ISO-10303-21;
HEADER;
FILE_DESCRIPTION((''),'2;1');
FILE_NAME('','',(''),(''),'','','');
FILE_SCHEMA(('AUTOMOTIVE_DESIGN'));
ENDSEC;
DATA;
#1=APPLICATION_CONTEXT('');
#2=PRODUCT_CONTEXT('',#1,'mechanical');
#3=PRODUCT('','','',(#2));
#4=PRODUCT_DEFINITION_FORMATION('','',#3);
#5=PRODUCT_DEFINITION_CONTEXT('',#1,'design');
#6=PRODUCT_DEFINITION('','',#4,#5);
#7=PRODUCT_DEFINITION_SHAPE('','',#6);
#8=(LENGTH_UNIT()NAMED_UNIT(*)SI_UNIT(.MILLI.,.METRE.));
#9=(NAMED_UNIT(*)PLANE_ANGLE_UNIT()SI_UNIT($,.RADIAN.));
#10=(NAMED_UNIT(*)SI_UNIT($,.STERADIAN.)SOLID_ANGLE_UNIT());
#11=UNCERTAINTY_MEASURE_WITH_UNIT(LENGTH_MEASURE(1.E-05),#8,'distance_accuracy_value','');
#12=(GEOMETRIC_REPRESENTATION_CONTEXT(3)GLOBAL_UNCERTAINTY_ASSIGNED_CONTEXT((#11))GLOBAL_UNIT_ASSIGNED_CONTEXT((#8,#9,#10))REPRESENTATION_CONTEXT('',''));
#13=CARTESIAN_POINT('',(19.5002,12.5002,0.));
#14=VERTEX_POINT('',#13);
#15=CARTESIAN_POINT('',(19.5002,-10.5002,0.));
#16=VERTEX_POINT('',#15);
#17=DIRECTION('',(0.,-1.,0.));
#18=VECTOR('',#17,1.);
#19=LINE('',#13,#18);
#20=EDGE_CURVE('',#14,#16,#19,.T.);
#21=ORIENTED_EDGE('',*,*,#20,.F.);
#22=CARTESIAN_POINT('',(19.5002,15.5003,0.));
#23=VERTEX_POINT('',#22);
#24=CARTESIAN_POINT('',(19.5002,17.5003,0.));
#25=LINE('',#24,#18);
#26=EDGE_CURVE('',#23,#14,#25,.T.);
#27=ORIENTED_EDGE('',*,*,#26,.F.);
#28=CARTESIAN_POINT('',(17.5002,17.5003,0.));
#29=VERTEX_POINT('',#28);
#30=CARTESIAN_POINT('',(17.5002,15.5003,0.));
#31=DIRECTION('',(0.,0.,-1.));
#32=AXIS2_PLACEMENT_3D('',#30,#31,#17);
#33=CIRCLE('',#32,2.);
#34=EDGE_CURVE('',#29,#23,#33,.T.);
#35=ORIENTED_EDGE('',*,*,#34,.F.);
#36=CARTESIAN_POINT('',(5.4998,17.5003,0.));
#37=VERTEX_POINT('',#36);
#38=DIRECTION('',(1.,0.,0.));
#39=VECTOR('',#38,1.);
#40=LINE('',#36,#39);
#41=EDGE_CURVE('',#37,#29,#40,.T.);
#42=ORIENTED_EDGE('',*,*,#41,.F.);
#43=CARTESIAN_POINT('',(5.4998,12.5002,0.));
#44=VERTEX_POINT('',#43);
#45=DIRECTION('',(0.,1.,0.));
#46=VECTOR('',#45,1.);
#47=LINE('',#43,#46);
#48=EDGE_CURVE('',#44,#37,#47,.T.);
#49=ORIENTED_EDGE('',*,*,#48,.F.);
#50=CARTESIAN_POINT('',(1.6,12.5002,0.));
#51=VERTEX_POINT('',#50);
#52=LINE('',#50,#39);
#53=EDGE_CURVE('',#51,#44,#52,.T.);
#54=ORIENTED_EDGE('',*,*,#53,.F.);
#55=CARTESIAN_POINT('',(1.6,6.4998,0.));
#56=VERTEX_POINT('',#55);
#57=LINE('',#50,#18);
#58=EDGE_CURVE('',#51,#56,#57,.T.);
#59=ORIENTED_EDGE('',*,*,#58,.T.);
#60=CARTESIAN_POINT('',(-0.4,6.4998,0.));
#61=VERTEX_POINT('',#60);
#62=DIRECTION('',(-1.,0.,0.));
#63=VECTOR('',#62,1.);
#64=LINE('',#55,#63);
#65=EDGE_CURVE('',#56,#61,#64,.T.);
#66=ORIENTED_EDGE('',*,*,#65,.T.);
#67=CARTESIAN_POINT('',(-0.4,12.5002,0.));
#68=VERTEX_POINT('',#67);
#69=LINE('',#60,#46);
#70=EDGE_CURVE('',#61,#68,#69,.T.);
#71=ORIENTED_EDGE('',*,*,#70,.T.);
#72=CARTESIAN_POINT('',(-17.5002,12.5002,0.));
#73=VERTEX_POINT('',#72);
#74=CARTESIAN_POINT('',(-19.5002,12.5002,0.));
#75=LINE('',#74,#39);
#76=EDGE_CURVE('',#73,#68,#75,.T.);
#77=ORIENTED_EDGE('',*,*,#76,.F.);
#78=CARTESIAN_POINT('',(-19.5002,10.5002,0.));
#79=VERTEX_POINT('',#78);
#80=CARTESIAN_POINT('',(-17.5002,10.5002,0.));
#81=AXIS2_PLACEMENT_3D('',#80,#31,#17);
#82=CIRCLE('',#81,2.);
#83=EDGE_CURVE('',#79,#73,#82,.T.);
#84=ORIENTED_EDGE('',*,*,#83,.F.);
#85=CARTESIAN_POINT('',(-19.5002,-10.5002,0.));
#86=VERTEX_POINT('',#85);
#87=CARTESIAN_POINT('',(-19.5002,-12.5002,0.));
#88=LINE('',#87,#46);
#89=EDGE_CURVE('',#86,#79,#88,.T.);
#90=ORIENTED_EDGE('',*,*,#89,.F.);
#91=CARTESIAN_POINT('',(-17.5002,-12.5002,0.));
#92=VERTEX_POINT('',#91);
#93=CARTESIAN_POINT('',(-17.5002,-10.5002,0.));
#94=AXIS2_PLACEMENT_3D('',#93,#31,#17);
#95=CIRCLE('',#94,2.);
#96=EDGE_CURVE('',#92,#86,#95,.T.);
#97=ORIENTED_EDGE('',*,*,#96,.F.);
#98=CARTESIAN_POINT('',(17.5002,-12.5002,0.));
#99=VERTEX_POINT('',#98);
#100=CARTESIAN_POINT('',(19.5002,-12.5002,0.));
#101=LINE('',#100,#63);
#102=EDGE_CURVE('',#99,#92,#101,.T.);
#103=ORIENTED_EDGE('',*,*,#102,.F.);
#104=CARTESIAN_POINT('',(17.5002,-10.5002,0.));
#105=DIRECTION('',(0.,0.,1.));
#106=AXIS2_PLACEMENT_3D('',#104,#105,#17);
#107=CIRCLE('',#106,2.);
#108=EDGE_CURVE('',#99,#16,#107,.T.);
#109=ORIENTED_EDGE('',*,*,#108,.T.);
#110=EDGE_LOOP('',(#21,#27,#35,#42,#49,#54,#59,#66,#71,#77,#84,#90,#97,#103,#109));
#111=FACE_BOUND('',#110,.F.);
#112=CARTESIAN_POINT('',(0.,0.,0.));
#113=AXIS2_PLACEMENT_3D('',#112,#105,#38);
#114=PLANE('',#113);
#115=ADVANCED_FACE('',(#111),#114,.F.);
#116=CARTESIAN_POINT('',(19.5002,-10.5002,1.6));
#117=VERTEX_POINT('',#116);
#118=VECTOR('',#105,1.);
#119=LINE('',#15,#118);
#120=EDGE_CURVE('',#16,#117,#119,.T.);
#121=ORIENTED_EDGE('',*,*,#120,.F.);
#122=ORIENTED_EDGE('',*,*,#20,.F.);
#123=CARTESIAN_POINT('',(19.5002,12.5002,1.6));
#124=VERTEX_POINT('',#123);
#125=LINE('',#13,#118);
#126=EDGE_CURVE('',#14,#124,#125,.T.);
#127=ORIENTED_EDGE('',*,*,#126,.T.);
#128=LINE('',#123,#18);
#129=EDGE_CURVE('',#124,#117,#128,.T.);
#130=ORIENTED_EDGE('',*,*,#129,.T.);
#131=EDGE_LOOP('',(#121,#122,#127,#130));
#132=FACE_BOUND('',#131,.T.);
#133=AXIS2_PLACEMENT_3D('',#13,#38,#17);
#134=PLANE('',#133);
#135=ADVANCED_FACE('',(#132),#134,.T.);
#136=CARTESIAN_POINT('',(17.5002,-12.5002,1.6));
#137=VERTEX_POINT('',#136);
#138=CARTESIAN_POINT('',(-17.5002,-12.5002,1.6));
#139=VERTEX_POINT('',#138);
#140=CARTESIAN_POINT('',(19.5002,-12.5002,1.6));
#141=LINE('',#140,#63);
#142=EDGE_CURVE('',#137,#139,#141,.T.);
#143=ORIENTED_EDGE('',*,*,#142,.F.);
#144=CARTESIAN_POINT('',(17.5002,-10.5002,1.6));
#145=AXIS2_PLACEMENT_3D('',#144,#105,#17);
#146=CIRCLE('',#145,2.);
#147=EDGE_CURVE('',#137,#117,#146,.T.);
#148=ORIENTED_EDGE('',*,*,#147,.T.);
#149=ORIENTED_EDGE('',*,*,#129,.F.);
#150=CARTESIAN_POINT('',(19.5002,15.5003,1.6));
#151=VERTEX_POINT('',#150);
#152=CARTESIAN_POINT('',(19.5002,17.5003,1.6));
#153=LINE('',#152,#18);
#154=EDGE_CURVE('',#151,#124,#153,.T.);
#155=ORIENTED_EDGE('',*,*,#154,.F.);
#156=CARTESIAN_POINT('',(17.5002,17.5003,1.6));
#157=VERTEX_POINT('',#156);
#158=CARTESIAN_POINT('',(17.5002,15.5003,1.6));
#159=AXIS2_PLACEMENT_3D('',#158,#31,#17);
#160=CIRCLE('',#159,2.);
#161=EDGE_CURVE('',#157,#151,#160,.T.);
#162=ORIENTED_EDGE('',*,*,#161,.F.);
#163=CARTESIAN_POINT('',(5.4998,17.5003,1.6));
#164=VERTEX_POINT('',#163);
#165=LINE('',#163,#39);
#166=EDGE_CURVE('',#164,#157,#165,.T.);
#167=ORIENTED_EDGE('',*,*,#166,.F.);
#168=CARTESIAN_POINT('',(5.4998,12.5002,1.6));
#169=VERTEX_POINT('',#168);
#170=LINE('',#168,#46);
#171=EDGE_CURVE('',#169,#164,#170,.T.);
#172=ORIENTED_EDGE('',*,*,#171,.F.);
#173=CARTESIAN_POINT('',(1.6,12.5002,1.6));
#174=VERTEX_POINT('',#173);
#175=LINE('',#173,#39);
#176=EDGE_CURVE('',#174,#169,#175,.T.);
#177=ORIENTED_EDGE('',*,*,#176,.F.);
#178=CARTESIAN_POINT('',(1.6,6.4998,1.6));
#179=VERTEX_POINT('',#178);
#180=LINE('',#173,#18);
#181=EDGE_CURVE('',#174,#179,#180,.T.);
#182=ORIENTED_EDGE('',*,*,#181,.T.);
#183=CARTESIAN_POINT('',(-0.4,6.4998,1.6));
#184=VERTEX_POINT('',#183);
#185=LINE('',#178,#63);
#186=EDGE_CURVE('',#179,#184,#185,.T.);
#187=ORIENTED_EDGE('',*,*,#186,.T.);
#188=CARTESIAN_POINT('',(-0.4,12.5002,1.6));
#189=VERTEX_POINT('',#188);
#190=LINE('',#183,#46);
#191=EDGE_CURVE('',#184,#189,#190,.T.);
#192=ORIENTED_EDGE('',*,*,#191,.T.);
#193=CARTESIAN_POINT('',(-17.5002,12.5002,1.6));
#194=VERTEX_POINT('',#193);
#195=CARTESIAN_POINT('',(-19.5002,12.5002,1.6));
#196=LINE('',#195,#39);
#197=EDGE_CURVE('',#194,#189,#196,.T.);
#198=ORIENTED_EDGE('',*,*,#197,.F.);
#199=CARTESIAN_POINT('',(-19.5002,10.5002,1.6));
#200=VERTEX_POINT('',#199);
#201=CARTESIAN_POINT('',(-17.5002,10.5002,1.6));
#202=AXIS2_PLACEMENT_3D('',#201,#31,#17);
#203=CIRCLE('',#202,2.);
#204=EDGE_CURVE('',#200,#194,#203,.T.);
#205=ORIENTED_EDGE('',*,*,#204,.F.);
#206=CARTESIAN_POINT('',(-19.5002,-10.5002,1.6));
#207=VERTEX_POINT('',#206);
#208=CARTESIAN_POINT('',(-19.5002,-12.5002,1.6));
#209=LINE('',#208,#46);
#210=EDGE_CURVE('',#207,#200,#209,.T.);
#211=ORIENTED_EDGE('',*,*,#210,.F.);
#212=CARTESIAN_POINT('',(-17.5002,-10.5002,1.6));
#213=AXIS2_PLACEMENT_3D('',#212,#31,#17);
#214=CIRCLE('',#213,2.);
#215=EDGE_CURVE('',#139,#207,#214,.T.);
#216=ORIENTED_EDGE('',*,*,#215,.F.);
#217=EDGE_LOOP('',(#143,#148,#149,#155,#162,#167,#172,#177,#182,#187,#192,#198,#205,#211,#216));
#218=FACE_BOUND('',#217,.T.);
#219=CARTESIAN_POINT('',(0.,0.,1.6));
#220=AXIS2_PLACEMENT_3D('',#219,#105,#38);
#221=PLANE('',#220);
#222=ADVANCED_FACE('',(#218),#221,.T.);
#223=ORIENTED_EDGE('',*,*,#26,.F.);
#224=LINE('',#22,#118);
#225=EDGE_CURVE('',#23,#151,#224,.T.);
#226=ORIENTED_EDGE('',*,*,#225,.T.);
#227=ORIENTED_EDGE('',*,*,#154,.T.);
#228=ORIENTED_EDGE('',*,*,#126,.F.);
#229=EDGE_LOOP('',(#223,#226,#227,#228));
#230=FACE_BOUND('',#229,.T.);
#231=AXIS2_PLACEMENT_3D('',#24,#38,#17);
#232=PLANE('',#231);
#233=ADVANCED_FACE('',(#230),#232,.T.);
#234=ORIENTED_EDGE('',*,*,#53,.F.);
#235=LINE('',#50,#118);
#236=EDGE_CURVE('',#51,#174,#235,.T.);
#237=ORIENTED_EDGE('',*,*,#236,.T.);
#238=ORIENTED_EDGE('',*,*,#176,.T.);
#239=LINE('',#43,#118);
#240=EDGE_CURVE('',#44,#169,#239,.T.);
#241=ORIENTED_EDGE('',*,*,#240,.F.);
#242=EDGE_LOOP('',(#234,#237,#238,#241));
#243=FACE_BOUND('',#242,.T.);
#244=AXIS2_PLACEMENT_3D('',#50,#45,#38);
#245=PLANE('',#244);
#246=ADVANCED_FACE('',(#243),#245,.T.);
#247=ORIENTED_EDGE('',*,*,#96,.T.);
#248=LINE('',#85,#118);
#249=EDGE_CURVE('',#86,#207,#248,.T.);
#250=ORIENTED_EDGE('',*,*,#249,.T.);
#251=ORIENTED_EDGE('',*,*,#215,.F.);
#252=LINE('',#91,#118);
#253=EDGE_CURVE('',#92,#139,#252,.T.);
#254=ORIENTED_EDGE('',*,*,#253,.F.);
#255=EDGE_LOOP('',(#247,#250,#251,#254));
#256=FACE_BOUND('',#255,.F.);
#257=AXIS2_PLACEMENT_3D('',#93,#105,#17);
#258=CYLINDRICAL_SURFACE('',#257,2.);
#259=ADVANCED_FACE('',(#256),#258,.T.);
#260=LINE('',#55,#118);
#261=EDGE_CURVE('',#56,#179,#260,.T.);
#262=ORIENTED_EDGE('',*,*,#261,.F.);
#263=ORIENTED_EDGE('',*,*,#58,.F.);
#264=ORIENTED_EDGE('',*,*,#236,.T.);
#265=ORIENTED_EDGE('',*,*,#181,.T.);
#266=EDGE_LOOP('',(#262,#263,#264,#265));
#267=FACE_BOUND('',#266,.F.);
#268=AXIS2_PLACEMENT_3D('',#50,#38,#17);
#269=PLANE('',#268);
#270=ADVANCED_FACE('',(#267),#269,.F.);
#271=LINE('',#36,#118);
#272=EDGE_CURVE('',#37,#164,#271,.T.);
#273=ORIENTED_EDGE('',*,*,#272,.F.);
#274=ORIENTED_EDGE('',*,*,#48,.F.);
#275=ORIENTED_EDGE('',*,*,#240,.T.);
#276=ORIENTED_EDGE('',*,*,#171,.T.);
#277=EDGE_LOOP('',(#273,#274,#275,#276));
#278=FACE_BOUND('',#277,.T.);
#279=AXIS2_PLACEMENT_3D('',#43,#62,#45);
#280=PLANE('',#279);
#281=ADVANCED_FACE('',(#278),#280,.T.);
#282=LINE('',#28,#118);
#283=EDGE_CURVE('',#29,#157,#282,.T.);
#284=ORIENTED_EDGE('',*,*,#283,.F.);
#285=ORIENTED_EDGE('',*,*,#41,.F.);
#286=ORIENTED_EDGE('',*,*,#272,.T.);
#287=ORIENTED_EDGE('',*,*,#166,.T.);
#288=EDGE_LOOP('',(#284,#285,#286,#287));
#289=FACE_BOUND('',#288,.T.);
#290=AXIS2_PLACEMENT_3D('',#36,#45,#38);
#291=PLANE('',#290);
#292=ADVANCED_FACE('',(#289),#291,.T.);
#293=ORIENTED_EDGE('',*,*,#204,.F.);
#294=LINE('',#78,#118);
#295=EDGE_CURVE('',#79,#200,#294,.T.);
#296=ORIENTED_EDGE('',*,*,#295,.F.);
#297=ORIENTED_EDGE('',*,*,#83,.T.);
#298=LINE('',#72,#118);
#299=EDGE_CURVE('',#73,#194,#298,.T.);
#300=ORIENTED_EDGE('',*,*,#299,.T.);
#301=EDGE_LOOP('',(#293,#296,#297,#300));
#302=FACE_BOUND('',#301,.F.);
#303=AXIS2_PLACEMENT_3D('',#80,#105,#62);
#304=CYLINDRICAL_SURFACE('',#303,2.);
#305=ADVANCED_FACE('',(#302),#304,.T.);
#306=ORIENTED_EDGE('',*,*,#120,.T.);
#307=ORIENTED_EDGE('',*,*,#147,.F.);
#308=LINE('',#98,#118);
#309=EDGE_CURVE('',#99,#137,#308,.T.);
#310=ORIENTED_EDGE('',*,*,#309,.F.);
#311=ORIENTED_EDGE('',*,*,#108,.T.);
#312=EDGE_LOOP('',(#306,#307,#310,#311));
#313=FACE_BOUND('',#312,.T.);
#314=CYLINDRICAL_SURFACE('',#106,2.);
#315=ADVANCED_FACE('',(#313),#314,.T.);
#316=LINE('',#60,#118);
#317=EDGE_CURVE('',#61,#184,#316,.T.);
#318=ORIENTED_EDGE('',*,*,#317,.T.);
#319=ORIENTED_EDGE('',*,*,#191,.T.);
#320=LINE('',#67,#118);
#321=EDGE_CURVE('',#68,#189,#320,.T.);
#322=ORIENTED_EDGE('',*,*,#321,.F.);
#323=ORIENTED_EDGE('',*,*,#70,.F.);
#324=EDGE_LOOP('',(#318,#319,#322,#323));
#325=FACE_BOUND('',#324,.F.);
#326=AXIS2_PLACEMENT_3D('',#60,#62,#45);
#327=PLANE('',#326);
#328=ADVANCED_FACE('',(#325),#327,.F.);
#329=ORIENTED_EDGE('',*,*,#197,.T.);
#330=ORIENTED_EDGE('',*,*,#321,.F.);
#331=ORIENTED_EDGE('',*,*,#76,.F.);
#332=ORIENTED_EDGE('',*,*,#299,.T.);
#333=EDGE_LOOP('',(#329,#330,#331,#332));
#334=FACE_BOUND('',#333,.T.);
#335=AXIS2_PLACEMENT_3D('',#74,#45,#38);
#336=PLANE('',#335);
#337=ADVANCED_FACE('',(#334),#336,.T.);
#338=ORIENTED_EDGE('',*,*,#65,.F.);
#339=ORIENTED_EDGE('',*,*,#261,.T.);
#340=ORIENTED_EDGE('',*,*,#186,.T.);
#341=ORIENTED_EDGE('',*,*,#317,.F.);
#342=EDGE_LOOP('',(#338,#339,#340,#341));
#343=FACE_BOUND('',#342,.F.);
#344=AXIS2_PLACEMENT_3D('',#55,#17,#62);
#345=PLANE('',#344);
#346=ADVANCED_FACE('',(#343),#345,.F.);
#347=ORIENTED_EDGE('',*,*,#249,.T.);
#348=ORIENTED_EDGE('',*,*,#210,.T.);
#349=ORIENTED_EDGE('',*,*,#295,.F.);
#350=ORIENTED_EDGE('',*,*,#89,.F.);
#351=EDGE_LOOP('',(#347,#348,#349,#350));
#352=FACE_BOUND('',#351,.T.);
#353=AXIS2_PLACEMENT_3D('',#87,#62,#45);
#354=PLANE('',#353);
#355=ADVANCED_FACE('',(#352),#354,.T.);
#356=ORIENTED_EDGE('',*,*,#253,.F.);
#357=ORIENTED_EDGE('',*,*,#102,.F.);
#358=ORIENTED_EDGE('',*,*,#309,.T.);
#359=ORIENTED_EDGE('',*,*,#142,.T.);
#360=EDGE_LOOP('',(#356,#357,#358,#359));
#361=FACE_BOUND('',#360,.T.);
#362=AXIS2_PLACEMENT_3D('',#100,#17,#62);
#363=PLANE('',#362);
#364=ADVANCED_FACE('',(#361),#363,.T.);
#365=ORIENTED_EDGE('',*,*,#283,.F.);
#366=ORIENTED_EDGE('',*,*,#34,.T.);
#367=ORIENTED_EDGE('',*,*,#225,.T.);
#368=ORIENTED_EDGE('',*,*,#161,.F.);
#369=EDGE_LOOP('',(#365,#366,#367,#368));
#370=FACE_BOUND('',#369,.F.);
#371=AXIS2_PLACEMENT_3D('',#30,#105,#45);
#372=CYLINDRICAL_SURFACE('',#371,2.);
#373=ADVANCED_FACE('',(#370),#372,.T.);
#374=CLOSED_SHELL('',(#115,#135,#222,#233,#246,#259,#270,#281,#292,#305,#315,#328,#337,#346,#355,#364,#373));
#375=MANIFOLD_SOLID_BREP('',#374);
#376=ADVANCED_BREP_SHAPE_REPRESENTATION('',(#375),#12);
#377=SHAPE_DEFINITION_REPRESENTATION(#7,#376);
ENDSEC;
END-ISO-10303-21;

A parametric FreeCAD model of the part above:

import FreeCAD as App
import Part
import Sketcher

V = App.Vector
Q = App.Units.Quantity


def edges_at(feature, points):
    """Names of the edges that pass closest to the given points."""
    edges = feature.Shape.Edges
    near = lambda p: min(range(len(edges)), key=lambda i: edges[i].distToShape(Part.Vertex(*p))[0])
    return sorted({f"Edge{near(p) + 1}" for p in points})

doc = App.newDocument("Part")
body = doc.addObject("PartDesign::Body", "Body")

sketch1 = doc.addObject("Sketcher::SketchObject", "Sketch")
body.addObject(sketch1)
sketch1.AttachmentSupport = (doc.XY_Plane, [""])
sketch1.MapMode = "FlatFace"
sketch1.addGeometry([
    Part.LineSegment(V(-19.5002, -12.5002, 0), V(19.5002, -12.5002, 0)),
    Part.LineSegment(V(19.5002, -12.5002, 0), V(19.5002, 17.5003, 0)),
    Part.LineSegment(V(19.5002, 17.5003, 0), V(5.4998, 17.5003, 0)),
    Part.LineSegment(V(5.4998, 17.5003, 0), V(5.4998, 12.5002, 0)),
    Part.LineSegment(V(5.4998, 12.5002, 0), V(1.6, 12.5002, 0)),
    Part.LineSegment(V(1.6, 12.5002, 0), V(1.6, 6.4998, 0)),
    Part.LineSegment(V(1.6, 6.4998, 0), V(-0.4, 6.4998, 0)),
    Part.LineSegment(V(-0.4, 6.4998, 0), V(-0.4, 12.5002, 0)),
    Part.LineSegment(V(-0.4, 12.5002, 0), V(-19.5002, 12.5002, 0)),
    Part.LineSegment(V(-19.5002, 12.5002, 0), V(-19.5002, -12.5002, 0)),
], False)
sketch1.addConstraint([
    Sketcher.Constraint("Coincident", 0, 2, 1, 1),
    Sketcher.Constraint("Coincident", 1, 2, 2, 1),
    Sketcher.Constraint("Coincident", 2, 2, 3, 1),
    Sketcher.Constraint("Coincident", 3, 2, 4, 1),
    Sketcher.Constraint("Coincident", 4, 2, 5, 1),
    Sketcher.Constraint("Coincident", 5, 2, 6, 1),
    Sketcher.Constraint("Coincident", 6, 2, 7, 1),
    Sketcher.Constraint("Coincident", 7, 2, 8, 1),
    Sketcher.Constraint("Coincident", 8, 2, 9, 1),
    Sketcher.Constraint("Coincident", 9, 2, 0, 1),
    Sketcher.Constraint("Horizontal", 0),
    Sketcher.Constraint("Vertical", 1),
    Sketcher.Constraint("Horizontal", 2),
    Sketcher.Constraint("Vertical", 3),
    Sketcher.Constraint("Horizontal", 4),
    Sketcher.Constraint("Vertical", 5),
    Sketcher.Constraint("Horizontal", 6),
    Sketcher.Constraint("Vertical", 7),
    Sketcher.Constraint("Horizontal", 8),
    Sketcher.Constraint("Vertical", 9),
    Sketcher.Constraint("Symmetric", 0, 2, 8, 2, -1, 1),
    Sketcher.Constraint("Horizontal", 4, 2, 7, 2),
    Sketcher.Constraint("DistanceX", 6, 2, 6, 1, Q("2 mm")),
    Sketcher.Constraint("DistanceY", 3, 2, 3, 1, Q("5 mm")),
    Sketcher.Constraint("DistanceY", 0, 2, 5, 2, Q("19 mm")),
    Sketcher.Constraint("DistanceX", 8, 2, 3, 2, Q("25 mm")),
    Sketcher.Constraint("DistanceX", -1, 1, 4, 2, Q("1.6 mm")),
    Sketcher.Constraint("DistanceX", 0, 1, 0, 2, Q("39.0004 mm")),
    Sketcher.Constraint("DistanceY", 1, 1, 1, 2, Q("30.0005 mm")),
])
pad1 = doc.addObject("PartDesign::Pad", "Pad")
body.addObject(pad1)
pad1.Profile = sketch1
pad1.Length = 1.6
doc.recompute()

fillet = doc.addObject("PartDesign::Fillet", "Fillet")
body.addObject(fillet)
fillet.Base = (pad1, edges_at(pad1, [
    (19.5, 17.5, 0.8),
    (-19.5, 12.5, 0.8),
    (19.5, -12.5, 0.8),
    (-19.5, -12.5, 0.8),
]))
fillet.Radius = 2

doc.recompute()
